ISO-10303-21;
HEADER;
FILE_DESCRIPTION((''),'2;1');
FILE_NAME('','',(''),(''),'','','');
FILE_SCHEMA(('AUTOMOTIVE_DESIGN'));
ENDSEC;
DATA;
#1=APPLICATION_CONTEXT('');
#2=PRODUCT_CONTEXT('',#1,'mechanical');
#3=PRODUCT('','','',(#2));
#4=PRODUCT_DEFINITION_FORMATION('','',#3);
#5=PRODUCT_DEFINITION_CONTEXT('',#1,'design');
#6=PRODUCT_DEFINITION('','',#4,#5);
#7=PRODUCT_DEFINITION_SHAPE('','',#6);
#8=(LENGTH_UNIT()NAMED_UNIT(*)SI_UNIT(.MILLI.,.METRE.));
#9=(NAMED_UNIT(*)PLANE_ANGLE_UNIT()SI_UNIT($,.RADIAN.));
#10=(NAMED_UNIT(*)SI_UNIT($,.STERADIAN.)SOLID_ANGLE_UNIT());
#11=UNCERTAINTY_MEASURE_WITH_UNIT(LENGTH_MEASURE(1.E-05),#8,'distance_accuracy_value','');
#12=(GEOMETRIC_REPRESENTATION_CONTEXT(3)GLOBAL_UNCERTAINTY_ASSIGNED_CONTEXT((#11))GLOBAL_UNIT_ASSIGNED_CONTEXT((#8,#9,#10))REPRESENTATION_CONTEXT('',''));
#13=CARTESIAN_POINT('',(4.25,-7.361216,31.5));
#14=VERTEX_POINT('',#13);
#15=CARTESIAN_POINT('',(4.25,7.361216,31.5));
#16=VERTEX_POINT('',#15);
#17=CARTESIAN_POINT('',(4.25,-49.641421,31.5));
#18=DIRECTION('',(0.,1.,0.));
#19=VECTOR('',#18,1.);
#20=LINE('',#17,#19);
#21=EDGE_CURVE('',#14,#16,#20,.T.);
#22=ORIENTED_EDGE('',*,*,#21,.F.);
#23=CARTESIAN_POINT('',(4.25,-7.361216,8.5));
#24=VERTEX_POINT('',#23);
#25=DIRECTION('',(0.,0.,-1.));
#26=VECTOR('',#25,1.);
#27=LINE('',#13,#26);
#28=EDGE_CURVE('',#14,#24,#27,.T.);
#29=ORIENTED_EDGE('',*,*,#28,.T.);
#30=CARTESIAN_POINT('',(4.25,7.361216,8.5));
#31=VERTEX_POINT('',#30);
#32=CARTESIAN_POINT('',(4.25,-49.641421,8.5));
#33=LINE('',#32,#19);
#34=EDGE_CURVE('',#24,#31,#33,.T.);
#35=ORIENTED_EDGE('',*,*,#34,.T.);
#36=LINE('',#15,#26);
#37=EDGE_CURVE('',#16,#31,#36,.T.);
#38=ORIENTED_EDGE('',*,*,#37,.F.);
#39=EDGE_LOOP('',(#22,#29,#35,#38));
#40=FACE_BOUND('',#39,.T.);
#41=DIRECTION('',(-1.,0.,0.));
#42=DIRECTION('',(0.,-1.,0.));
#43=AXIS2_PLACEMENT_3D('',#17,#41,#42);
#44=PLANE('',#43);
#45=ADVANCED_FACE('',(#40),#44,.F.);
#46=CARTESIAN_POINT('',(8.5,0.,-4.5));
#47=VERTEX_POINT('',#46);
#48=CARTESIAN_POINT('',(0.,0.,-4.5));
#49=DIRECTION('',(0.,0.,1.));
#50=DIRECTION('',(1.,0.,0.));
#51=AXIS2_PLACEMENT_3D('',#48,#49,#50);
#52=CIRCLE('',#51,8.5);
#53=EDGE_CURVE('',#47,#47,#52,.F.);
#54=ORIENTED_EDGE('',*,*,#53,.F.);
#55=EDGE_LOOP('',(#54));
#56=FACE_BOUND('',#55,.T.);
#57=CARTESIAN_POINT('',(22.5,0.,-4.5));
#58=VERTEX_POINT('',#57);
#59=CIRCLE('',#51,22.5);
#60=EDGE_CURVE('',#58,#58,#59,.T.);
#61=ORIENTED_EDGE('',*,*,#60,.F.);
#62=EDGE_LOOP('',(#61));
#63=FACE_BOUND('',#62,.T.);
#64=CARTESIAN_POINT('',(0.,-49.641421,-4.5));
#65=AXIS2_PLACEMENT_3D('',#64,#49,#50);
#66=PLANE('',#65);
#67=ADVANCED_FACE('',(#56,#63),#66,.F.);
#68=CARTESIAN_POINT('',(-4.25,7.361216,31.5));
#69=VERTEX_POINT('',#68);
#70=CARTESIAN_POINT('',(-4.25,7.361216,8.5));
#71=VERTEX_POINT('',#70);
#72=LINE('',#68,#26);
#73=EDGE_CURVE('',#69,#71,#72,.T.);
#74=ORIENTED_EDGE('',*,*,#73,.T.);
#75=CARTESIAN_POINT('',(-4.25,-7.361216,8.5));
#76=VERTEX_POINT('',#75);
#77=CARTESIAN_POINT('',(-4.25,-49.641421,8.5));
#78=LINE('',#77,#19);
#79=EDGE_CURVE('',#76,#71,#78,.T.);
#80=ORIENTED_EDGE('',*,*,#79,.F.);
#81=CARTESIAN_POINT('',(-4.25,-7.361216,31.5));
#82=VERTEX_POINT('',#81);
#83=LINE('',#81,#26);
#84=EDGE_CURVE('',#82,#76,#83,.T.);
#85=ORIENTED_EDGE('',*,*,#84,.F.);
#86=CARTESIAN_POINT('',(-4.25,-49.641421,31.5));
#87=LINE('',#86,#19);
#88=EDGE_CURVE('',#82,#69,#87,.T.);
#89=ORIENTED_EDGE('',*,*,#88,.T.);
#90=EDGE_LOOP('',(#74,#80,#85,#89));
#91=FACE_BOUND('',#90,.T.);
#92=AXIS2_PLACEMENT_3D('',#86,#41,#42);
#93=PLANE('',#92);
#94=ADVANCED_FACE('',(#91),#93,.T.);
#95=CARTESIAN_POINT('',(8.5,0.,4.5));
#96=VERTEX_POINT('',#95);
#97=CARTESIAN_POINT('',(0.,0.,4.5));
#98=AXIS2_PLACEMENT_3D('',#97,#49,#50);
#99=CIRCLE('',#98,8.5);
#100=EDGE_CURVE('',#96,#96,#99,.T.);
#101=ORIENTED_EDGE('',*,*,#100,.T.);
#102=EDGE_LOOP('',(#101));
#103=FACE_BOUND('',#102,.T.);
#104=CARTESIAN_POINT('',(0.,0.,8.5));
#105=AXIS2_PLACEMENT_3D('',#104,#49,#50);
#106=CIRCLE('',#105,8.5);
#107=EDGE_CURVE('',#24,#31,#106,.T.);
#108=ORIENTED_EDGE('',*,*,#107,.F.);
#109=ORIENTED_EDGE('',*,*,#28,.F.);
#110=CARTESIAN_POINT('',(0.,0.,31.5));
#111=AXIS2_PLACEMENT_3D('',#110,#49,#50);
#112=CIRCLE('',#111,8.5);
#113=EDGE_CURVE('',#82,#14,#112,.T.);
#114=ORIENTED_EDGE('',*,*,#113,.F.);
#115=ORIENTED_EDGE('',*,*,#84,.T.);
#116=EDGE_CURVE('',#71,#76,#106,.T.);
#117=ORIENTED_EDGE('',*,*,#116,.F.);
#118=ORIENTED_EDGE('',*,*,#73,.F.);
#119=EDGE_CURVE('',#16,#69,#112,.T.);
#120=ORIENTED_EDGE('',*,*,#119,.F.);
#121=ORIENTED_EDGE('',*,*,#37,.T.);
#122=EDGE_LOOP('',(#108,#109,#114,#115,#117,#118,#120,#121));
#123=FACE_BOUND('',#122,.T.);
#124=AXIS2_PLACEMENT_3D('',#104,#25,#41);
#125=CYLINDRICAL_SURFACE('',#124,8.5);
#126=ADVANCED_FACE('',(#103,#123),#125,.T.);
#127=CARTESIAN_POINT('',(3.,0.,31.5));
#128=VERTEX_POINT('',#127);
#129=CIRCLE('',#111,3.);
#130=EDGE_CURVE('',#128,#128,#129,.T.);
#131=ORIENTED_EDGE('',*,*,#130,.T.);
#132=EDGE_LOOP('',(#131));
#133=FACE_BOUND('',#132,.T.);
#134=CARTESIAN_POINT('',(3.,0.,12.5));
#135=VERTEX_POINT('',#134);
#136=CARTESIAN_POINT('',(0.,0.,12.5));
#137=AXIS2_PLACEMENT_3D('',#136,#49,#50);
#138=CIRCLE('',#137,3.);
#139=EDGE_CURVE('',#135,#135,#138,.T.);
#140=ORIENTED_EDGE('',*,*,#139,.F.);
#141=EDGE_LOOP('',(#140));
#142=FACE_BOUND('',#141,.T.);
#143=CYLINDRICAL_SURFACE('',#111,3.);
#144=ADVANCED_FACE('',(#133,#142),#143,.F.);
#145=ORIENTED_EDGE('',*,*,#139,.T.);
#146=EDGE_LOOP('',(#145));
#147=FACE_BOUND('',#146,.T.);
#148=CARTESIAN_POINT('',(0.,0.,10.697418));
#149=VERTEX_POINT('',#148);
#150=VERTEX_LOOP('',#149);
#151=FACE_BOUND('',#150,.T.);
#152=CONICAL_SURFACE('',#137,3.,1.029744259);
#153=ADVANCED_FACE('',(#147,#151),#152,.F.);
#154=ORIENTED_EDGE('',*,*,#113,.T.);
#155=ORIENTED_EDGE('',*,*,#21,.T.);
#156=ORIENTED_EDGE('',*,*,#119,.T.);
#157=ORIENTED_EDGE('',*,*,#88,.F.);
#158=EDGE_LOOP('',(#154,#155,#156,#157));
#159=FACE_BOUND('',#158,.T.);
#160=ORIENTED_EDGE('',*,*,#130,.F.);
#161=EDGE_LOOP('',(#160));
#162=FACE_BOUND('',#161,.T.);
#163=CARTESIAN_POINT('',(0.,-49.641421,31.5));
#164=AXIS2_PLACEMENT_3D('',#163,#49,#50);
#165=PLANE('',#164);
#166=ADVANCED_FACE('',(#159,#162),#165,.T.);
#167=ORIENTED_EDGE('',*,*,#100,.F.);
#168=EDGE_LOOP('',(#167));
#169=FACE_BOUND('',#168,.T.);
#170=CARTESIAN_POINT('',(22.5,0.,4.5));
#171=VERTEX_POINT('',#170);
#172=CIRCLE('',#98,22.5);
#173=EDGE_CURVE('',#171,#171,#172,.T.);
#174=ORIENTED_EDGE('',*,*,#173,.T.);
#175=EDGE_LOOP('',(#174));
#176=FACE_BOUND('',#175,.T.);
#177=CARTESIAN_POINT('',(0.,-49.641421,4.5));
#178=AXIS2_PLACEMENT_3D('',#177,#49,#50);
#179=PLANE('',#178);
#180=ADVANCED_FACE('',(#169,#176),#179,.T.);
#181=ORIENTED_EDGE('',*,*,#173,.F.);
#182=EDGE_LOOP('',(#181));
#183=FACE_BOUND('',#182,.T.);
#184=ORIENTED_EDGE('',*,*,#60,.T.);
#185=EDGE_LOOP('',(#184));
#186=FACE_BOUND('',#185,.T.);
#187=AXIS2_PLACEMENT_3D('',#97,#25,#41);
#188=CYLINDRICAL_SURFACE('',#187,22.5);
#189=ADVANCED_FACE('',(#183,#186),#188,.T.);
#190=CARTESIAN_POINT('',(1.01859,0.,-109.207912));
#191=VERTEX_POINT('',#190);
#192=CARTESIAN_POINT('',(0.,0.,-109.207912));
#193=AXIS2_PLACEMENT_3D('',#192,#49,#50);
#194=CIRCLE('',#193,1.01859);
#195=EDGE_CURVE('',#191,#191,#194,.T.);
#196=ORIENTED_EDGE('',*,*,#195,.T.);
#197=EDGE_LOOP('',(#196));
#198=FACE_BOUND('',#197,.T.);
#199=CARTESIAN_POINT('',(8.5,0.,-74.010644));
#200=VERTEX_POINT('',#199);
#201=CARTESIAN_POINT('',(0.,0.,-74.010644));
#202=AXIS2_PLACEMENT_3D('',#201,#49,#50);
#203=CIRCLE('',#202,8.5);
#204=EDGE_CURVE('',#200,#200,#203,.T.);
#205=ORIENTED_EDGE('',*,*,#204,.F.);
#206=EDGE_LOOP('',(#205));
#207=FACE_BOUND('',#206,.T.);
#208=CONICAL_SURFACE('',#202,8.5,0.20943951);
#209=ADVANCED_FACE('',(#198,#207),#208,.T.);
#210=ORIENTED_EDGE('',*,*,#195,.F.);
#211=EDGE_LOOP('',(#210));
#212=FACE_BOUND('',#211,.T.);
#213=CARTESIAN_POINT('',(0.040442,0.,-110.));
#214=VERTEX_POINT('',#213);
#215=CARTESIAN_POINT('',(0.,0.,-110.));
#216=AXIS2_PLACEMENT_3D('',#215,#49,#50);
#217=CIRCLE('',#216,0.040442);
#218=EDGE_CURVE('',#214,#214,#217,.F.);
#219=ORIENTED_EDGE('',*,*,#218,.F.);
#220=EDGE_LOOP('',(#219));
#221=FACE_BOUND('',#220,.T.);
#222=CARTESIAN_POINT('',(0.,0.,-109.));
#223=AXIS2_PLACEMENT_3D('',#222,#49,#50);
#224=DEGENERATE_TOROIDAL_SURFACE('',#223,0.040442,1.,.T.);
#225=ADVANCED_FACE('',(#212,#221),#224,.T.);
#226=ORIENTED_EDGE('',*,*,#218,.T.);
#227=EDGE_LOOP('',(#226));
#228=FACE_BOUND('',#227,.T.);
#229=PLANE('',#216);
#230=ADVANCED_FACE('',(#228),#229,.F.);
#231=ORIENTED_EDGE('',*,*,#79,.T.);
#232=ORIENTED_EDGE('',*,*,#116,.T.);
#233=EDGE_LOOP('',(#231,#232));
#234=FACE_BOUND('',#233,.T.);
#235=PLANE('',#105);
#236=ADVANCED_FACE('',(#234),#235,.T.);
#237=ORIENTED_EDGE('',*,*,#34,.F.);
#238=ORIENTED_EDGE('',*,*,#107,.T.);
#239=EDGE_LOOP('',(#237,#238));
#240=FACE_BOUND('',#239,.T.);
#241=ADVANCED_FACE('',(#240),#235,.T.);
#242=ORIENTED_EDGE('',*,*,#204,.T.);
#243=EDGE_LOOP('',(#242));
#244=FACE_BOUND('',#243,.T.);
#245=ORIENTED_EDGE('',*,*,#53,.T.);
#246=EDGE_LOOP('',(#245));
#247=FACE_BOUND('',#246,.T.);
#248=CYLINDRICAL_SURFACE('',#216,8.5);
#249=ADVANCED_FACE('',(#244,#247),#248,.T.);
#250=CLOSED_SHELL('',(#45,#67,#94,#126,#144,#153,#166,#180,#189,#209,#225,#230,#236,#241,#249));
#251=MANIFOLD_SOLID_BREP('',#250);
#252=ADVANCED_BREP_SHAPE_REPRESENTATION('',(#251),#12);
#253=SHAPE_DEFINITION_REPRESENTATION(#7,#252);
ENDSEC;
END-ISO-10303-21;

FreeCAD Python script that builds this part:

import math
import FreeCAD as App
import Part
import Sketcher

V = App.Vector
Q = App.Units.Quantity


def edges_at(feature, points):
    """Names of the edges that pass closest to the given points."""
    edges = feature.Shape.Edges
    near = lambda p: min(range(len(edges)), key=lambda i: edges[i].distToShape(Part.Vertex(*p))[0])
    return sorted({f"Edge{near(p) + 1}" for p in points})

doc = App.newDocument("Part")
body = doc.addObject("PartDesign::Body", "Body")

sketch1 = body.newObject("Sketcher::SketchObject", "Sketch")
sketch1.AttachmentSupport = (doc.getObject("XY_Plane"), [""])
sketch1.MapMode = "FlatFace"
sketch1.addGeometry(Part.Circle(V(0, 0, 0), V(0, 0, 1), 8.5), False)
sketch1.addConstraint(Sketcher.Constraint("Coincident", 0, 3, -1, 1))
sketch1.addConstraint(Sketcher.Constraint("Diameter", 0, 17.0))
pad1 = body.newObject("PartDesign::Pad", "Pad")
pad1.Profile = sketch1
pad1.Length = 110
pad1.Reversed = True

sketch2 = body.newObject("Sketcher::SketchObject", "Sketch001")
sketch2.AttachmentSupport = (doc.getObject("XY_Plane"), [""])
sketch2.MapMode = "FlatFace"
sketch2.addGeometry(Part.Circle(V(0, 0, 0), V(0, 0, 1), 22.5), False)
sketch2.addConstraint(Sketcher.Constraint("Coincident", 0, 3, -1, 1))
sketch2.addConstraint(Sketcher.Constraint("Diameter", 0, 45.0))
pad2 = body.newObject("PartDesign::Pad", "Pad001")
pad2.Profile = sketch2
pad2.Length = 9
pad2.Midplane = True

sketch3 = body.newObject("Sketcher::SketchObject", "Sketch002")
sketch3.AttachmentSupport = (doc.getObject("YZ_Plane"), [""])
sketch3.MapMode = "FlatFace"
sketch3.addGeometry(Part.LineSegment(V(8.5, -74.010644, 0), V(0, -114, 0)), False)
sketch3.addGeometry(Part.LineSegment(V(0, -114, 0), V(0, -124.010644, 0)), False)
sketch3.addGeometry(Part.LineSegment(V(0, -124.010644, 0), V(25, -124.010644, 0)), False)
sketch3.addGeometry(Part.LineSegment(V(25, -124.010644, 0), V(25, -74.010644, 0)), False)
sketch3.addGeometry(Part.LineSegment(V(25, -74.010644, 0), V(8.5, -74.010644, 0)), False)
sketch3.addConstraint(Sketcher.Constraint("Coincident", 0, 2, 1, 1))
sketch3.addConstraint(Sketcher.Constraint("Coincident", 1, 2, 2, 1))
sketch3.addConstraint(Sketcher.Constraint("Coincident", 2, 2, 3, 1))
sketch3.addConstraint(Sketcher.Constraint("Coincident", 3, 2, 4, 1))
sketch3.addConstraint(Sketcher.Constraint("Coincident", 4, 2, 0, 1))
sketch3.addConstraint(Sketcher.Constraint("Vertical", 1))
sketch3.addConstraint(Sketcher.Constraint("Horizontal", 2))
sketch3.addConstraint(Sketcher.Constraint("Vertical", 3))
sketch3.addConstraint(Sketcher.Constraint("Horizontal", 4))
sketch3.addConstraint(Sketcher.Constraint("PointOnObject", 0, 2, -2))
sketch3.addConstraint(Sketcher.Constraint("DistanceX", 2, 1, 2, 2, 25.0))
sketch3.addConstraint(Sketcher.Constraint("DistanceY", 3, 1, 3, 2, 50.0))
sketch3.addConstraint(Sketcher.Constraint("Angle", 0, Q("-102 deg")))
sketch3.addConstraint(Sketcher.Constraint("DistanceX", 4, 2, 4, 1, 16.5))
sketch3.addConstraint(Sketcher.Constraint("DistanceY", 0, 2, -1, 1, 114.0))
groove = body.newObject("PartDesign::Groove", "Groove")
groove.Profile = sketch3
groove.ReferenceAxis = (sketch3, ["V_Axis"])
groove.Angle = 360
doc.recompute()

fillet = body.newObject("PartDesign::Fillet", "Fillet")
fillet.Base = (groove, edges_at(groove, [(-0.85, 0, -110)]))
fillet.Radius = 1

sketch4 = body.newObject("Sketcher::SketchObject", "Sketch003")
sketch4.AttachmentSupport = (doc.getObject("XY_Plane"), [""])
sketch4.MapMode = "FlatFace"
sketch4.AttachmentOffset = App.Placement(V(0, 0, 4.5), App.Rotation())
sketch4.addGeometry(Part.Circle(V(0, 0, 0), V(0, 0, 1), 8.5), False)
sketch4.addConstraint(Sketcher.Constraint("Coincident", 0, 3, -1, 1))
sketch4.addConstraint(Sketcher.Constraint("Diameter", 0, 17.0))
pad3 = body.newObject("PartDesign::Pad", "Pad002")
pad3.Profile = sketch4
pad3.Length = 4

sketch5 = body.newObject("Sketcher::SketchObject", "Sketch004")
sketch5.AttachmentSupport = (doc.getObject("XY_Plane"), [""])
sketch5.MapMode = "FlatFace"
sketch5.AttachmentOffset = App.Placement(V(0, 0, 8.5), App.Rotation())
sketch5.addGeometry(Part.LineSegment(V(-4.25, 7.361216, 0), V(-4.25, -7.361216, 0)), False)
sketch5.addGeometry(Part.ArcOfCircle(Part.Circle(V(0, 0, 0), V(0, 0, 1), 8.5), math.radians(-120), math.radians(-60)), False)
sketch5.addGeometry(Part.LineSegment(V(4.25, -7.361216, 0), V(4.25, 7.361216, 0)), False)
sketch5.addGeometry(Part.ArcOfCircle(Part.Circle(V(0, 0, 0), V(0, 0, 1), 8.5), math.radians(60), math.radians(120)), False)
sketch5.addConstraint(Sketcher.Constraint("Coincident", 0, 2, 1, 1))
sketch5.addConstraint(Sketcher.Constraint("Coincident", 1, 2, 2, 1))
sketch5.addConstraint(Sketcher.Constraint("Coincident", 2, 2, 3, 1))
sketch5.addConstraint(Sketcher.Constraint("Coincident", 3, 2, 0, 1))
sketch5.addConstraint(Sketcher.Constraint("Vertical", 0))
sketch5.addConstraint(Sketcher.Constraint("Vertical", 2))
sketch5.addConstraint(Sketcher.Constraint("Coincident", 1, 3, -1, 1))
sketch5.addConstraint(Sketcher.Constraint("Coincident", 3, 3, -1, 1))
sketch5.addConstraint(Sketcher.Constraint("Equal", 1, 3))
sketch5.addConstraint(Sketcher.Constraint("Horizontal", 0, 2, 1, 2))
sketch5.addConstraint(Sketcher.Constraint("Radius", 1, 8.5))
sketch5.addConstraint(Sketcher.Constraint("DistanceX", 0, 2, 1, 2, 8.5))
pad4 = body.newObject("PartDesign::Pad", "Pad003")
pad4.Profile = sketch5
pad4.Length = 23

sketch6 = body.newObject("Sketcher::SketchObject", "Sketch005")
sketch6.AttachmentSupport = (doc.getObject("XY_Plane"), [""])
sketch6.MapMode = "FlatFace"
sketch6.AttachmentOffset = App.Placement(V(0, 0, 31.5), App.Rotation())
sketch6.addGeometry(Part.Circle(V(0, 0, 0), V(0, 0, 1), 3), False)
sketch6.addConstraint(Sketcher.Constraint("Coincident", 0, 3, -1, 1))
sketch6.addConstraint(Sketcher.Constraint("Diameter", 0, 6.0))
doc.recompute()
hole = body.newObject("PartDesign::Hole", "Hole")
hole.Profile = sketch6
hole.ThreadType = "None"
hole.Diameter = 6
hole.DepthType = "Dimension"
hole.Depth = 19
hole.DrillPoint = "Angled"
hole.DrillPointAngle = 118

doc.recompute()
